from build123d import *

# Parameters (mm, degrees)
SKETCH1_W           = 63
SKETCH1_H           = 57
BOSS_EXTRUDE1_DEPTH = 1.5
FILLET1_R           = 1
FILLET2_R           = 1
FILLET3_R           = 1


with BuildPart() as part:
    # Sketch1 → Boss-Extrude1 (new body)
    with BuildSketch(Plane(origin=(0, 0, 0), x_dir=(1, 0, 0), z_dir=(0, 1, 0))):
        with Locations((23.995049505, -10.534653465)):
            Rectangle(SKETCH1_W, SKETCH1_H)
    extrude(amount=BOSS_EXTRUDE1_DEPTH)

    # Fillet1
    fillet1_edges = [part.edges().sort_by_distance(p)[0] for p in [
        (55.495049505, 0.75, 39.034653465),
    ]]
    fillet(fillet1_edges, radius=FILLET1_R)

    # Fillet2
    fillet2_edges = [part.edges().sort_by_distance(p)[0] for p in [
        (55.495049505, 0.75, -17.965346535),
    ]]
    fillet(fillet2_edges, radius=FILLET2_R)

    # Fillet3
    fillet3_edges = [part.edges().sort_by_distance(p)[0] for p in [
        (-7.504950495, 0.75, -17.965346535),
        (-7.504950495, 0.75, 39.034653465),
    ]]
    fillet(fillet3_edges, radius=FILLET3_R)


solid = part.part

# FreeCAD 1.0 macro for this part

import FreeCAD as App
import Part
import Sketcher

V = App.Vector


def edges_at(feature, points):
    """Names of the edges that pass closest to the given points."""
    edges = feature.Shape.Edges
    near = lambda p: min(range(len(edges)), key=lambda i: edges[i].distToShape(Part.Vertex(*p))[0])
    return sorted({f"Edge{near(p) + 1}" for p in points})

doc = App.newDocument("Part")
body = doc.addObject("PartDesign::Body", "Body")

# Sketch on XZ plane
sketch1 = body.newObject("Sketcher::SketchObject", "Sketch")
sketch1.AttachmentSupport = (doc.getObject("XZ_Plane"), [""])
sketch1.MapMode = "FlatFace"
sketch1.addGeometry(Part.LineSegment(V(-8, -18, 0), V(-8, 39, 0)), False)
sketch1.addGeometry(Part.LineSegment(V(-8, 39, 0), V(55, 39, 0)), False)
sketch1.addGeometry(Part.LineSegment(V(55, 39, 0), V(55, -18, 0)), False)
sketch1.addGeometry(Part.LineSegment(V(55, -18, 0), V(-8, -18, 0)), False)
sketch1.addConstraint(Sketcher.Constraint("Coincident", 0, 2, 1, 1))
sketch1.addConstraint(Sketcher.Constraint("Coincident", 1, 2, 2, 1))
sketch1.addConstraint(Sketcher.Constraint("Coincident", 2, 2, 3, 1))
sketch1.addConstraint(Sketcher.Constraint("Coincident", 3, 2, 0, 1))
sketch1.addConstraint(Sketcher.Constraint("Vertical", 0))
sketch1.addConstraint(Sketcher.Constraint("Horizontal", 1))
sketch1.addConstraint(Sketcher.Constraint("Vertical", 2))
sketch1.addConstraint(Sketcher.Constraint("Horizontal", 3))
sketch1.addConstraint(Sketcher.Constraint("DistanceX", 1, 1, 1, 2, 63.0))
sketch1.addConstraint(Sketcher.Constraint("DistanceY", 0, 1, 0, 2, 57.0))
sketch1.addConstraint(Sketcher.Constraint("DistanceX", 0, 2, -1, 1, 7.50495))
sketch1.addConstraint(Sketcher.Constraint("DistanceY", -1, 1, 0, 2, 39.034653))
pad1 = body.newObject("PartDesign::Pad", "Pad")
pad1.Profile = sketch1
pad1.Length = 1.5
pad1.Reversed = True
doc.recompute()

fillet = body.newObject("PartDesign::Fillet", "Fillet")
fillet.Base = (pad1, edges_at(pad1, [(55.495, 0.75, 39.035)]))
fillet.Radius = 1
doc.recompute()

fillet2 = body.newObject("PartDesign::Fillet", "Fillet001")
fillet2.Base = (fillet, edges_at(fillet, [(55.495, 0.75, -17.965)]))
fillet2.Radius = 1
doc.recompute()

fillet3 = body.newObject("PartDesign::Fillet", "Fillet002")
fillet3.Base = (fillet2, edges_at(fillet2, [(-7.505, 0.75, -17.965), (-7.505, 0.75, 39.035)]))
fillet3.Radius = 1

doc.recompute()
